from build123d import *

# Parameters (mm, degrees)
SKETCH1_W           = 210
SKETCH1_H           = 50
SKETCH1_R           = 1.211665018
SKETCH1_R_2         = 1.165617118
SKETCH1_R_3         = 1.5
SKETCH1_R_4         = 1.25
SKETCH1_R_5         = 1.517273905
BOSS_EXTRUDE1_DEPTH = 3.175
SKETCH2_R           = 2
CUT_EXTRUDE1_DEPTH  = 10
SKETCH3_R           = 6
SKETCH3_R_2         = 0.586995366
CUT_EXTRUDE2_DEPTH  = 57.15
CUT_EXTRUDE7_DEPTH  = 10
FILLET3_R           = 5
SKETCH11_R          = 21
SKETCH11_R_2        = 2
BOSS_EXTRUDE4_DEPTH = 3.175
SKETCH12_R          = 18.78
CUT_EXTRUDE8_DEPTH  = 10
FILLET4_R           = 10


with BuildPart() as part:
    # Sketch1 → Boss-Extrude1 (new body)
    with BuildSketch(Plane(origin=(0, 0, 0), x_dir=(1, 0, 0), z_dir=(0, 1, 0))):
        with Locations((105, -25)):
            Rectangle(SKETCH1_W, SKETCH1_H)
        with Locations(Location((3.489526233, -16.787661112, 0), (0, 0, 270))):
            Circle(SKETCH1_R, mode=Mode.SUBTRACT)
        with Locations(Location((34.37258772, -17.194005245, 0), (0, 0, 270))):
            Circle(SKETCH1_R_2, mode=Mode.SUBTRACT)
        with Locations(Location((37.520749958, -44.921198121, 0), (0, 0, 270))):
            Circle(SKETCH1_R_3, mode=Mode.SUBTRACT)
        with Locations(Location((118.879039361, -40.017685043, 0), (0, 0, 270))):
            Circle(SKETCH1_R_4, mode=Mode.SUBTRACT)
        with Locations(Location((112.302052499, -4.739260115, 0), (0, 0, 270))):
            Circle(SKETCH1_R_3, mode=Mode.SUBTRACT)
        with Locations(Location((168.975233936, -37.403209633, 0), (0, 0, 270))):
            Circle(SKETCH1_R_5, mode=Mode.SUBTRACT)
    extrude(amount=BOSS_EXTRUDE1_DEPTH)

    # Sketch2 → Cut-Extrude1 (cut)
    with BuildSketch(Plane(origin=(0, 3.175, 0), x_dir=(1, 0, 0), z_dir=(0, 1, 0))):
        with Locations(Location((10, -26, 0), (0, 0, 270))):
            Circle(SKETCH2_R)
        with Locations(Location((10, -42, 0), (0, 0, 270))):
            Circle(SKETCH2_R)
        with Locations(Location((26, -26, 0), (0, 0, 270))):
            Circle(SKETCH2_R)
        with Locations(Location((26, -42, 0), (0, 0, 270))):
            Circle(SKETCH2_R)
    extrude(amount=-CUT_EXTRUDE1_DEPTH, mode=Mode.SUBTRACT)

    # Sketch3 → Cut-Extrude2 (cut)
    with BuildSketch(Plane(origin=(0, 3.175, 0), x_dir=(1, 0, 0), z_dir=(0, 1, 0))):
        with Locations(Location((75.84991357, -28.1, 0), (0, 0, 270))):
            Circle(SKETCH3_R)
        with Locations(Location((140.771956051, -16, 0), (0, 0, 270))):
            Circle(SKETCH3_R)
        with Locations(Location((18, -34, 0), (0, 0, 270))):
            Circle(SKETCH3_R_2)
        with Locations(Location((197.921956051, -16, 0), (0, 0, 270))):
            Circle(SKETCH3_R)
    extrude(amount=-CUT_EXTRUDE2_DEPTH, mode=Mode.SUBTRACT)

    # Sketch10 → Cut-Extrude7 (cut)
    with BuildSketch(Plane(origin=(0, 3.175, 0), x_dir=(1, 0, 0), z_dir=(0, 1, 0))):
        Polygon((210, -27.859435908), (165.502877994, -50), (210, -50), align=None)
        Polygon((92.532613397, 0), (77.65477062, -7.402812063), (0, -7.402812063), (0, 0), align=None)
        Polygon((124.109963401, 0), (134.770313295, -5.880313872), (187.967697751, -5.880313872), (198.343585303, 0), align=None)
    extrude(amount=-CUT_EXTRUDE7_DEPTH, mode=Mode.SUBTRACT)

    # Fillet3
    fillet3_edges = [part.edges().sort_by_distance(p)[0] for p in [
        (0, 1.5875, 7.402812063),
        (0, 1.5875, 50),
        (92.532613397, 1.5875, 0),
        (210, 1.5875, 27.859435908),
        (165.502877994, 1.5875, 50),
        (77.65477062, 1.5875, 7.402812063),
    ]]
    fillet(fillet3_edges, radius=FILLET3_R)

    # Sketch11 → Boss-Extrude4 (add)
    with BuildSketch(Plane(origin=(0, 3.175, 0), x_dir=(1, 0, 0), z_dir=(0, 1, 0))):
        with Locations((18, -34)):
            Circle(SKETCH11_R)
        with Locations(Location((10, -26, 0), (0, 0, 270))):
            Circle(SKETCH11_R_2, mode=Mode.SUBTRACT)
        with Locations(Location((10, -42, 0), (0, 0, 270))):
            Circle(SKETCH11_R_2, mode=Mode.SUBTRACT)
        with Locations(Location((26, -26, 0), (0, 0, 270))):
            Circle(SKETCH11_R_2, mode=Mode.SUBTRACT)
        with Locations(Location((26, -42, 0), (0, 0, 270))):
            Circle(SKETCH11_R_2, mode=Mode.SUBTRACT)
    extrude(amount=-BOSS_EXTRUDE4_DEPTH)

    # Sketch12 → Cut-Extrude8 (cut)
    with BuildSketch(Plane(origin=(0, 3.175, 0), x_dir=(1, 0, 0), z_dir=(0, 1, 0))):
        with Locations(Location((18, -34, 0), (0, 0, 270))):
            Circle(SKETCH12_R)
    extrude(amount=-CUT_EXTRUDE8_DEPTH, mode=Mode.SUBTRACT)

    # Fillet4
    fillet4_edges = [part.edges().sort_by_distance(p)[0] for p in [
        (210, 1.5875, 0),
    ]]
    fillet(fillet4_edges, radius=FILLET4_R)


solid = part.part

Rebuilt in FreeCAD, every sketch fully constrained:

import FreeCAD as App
import Part
import Sketcher

V = App.Vector


def edges_at(feature, points):
    """Names of the edges that pass closest to the given points."""
    edges = feature.Shape.Edges
    near = lambda p: min(range(len(edges)), key=lambda i: edges[i].distToShape(Part.Vertex(*p))[0])
    return sorted({f"Edge{near(p) + 1}" for p in points})


def add_polygon(sketch, points):
    """Adds a closed chain of lines whose ends are joined by coincident constraints."""
    first, n = sketch.GeometryCount, len(points)
    for a, b in zip(points, points[1:] + points[:1]):
        sketch.addGeometry(Part.LineSegment(App.Vector(*a, 0), App.Vector(*b, 0)), False)
    for i in range(n):
        sketch.addConstraint(Sketcher.Constraint("Coincident", first + i, 2, first + (i + 1) % n, 1))

doc = App.newDocument("Part")
params = doc.addObject("Spreadsheet::Sheet", "Params")
for row, (alias, value) in enumerate([
    ("sketch1_diameter", "3 mm"),
    ("sketch1_diameter2", "2.5 mm"),
    ("sketch1_width", "210 mm"),
    ("sketch1_height", "50 mm"),
    ("pad1_length", "3.175 mm"),
    ("sketch2_diameter", "4 mm"),
    ("pocket1_length", "10 mm"),
    ("sketch3_diameter", "12 mm"),
    ("pocket2_length", "57.15 mm"),
    ("pocket3_length", "10 mm"),
    ("fillet_radius", "5 mm"),
    ("sketch5_diameter", "42 mm"),
    ("sketch5_diameter2", "4 mm"),
    ("pad2_length", "3.175 mm"),
    ("sketch6_diameter", "37.56 mm"),
    ("pocket4_length", "10 mm"),
    ("fillet2_radius", "10 mm"),
], start=1):
    params.set(f"A{row}", alias)
    params.set(f"B{row}", "=" + value)
    params.setAlias(f"B{row}", alias)

body = doc.addObject("PartDesign::Body", "Body")

# Sketch on XZ plane
sketch1 = doc.addObject("Sketcher::SketchObject", "Sketch")
body.addObject(sketch1)
sketch1.AttachmentSupport = (doc.XZ_Plane, [""])
sketch1.MapMode = "FlatFace"
add_polygon(sketch1, [(0, 0), (0, 50), (210, 50), (210, 0)])  # lines 0-3
sketch1.addGeometry(Part.Circle(V(37.5, 44.9, 0), V(0, 0, 1), 1.5), False)  # 4
sketch1.addGeometry(Part.Circle(V(118.9, 40, 0), V(0, 0, 1), 1.2), False)  # 5
sketch1.addGeometry(Part.Circle(V(169, 37.4, 0), V(0, 0, 1), 1.5), False)  # 6
sketch1.addGeometry(Part.Circle(V(3.5, 16.8, 0), V(0, 0, 1), 1.2), False)  # 7
sketch1.addGeometry(Part.Circle(V(34.4, 17.2, 0), V(0, 0, 1), 1.2), False)  # 8
sketch1.addGeometry(Part.Circle(V(112.3, 4.7, 0), V(0, 0, 1), 1.5), False)  # 9
sketch1.addConstraint(Sketcher.Constraint("Vertical", 0))
sketch1.addConstraint(Sketcher.Constraint("Horizontal", 1))
sketch1.addConstraint(Sketcher.Constraint("Vertical", 2))
sketch1.addConstraint(Sketcher.Constraint("Horizontal", 3))
sketch1.addConstraint(Sketcher.Constraint("Coincident", 3, 2, -1, 1))
sketch1.addConstraint(Sketcher.Constraint("Equal", 4, 9))
sketch1.addConstraint(Sketcher.Constraint("Diameter", 4, 3.0))
sketch1.addConstraint(Sketcher.Constraint("Diameter", 5, 2.5))
sketch1.addConstraint(Sketcher.Constraint("DistanceX", 1, 1, 1, 2, 210.0))
sketch1.addConstraint(Sketcher.Constraint("DistanceY", 0, 1, 0, 2, 50.0))
sketch1.addConstraint(Sketcher.Constraint("Diameter", 7, 2.42333))
sketch1.addConstraint(Sketcher.Constraint("Diameter", 6, 3.034548))
sketch1.addConstraint(Sketcher.Constraint("Diameter", 8, 2.331234))
sketch1.addConstraint(Sketcher.Constraint("DistanceY", -1, 1, 4, 3, 44.921198))
sketch1.addConstraint(Sketcher.Constraint("DistanceY", 9, 3, 7, 3, 12.048401))
sketch1.addConstraint(Sketcher.Constraint("DistanceX", -1, 1, 4, 3, 37.52075))
sketch1.addConstraint(Sketcher.Constraint("DistanceX", -1, 1, 5, 3, 118.879039))
sketch1.addConstraint(Sketcher.Constraint("DistanceY", -1, 1, 6, 3, 37.40321))
sketch1.addConstraint(Sketcher.Constraint("DistanceY", -1, 1, 7, 3, 16.787661))
sketch1.addConstraint(Sketcher.Constraint("DistanceX", 7, 3, 8, 3, 30.883061))
sketch1.addConstraint(Sketcher.Constraint("DistanceX", 8, 3, 5, 3, 84.506452))
sketch1.addConstraint(Sketcher.Constraint("DistanceY", 8, 3, 5, 3, 22.82368))
sketch1.addConstraint(Sketcher.Constraint("DistanceX", 9, 3, 6, 3, 56.673181))
sketch1.addConstraint(Sketcher.Constraint("DistanceY", -1, 1, 5, 3, 40.017685))
sketch1.addConstraint(Sketcher.Constraint("DistanceX", -1, 1, 6, 3, 168.975234))
sketch1.setExpression("Constraints[10]", "Params.sketch1_diameter")
sketch1.setExpression("Constraints[11]", "Params.sketch1_diameter2")
sketch1.setExpression("Constraints[12]", "Params.sketch1_width")
sketch1.setExpression("Constraints[13]", "Params.sketch1_height")
pad1 = doc.addObject("PartDesign::Pad", "Pad")
body.addObject(pad1)
pad1.Profile = sketch1
pad1.setExpression("Length", "Params.pad1_length")
pad1.Reversed = True

# Sketch on XZ plane
sketch2 = doc.addObject("Sketcher::SketchObject", "Sketch001")
body.addObject(sketch2)
sketch2.AttachmentSupport = (doc.XZ_Plane, [""])
sketch2.MapMode = "FlatFace"
sketch2.AttachmentOffset = App.Placement(V(0, 0, -3.175), App.Rotation())
sketch2.addGeometry(Part.Circle(V(10, 26, 0), V(0, 0, 1), 2), False)
sketch2.addGeometry(Part.Circle(V(10, 42, 0), V(0, 0, 1), 2), False)
sketch2.addGeometry(Part.Circle(V(26, 26, 0), V(0, 0, 1), 2), False)
sketch2.addGeometry(Part.Circle(V(26, 42, 0), V(0, 0, 1), 2), False)
sketch2.addConstraint(Sketcher.Constraint("Equal", 0, 1))
sketch2.addConstraint(Sketcher.Constraint("Equal", 1, 2))
sketch2.addConstraint(Sketcher.Constraint("Equal", 2, 3))
sketch2.addConstraint(Sketcher.Constraint("Horizontal", 0, 3, 2, 3))
sketch2.addConstraint(Sketcher.Constraint("Horizontal", 1, 3, 3, 3))
sketch2.addConstraint(Sketcher.Constraint("Vertical", 0, 3, 1, 3))
sketch2.addConstraint(Sketcher.Constraint("Vertical", 2, 3, 3, 3))
sketch2.addConstraint(Sketcher.Constraint("Diameter", 0, 4.0))
sketch2.addConstraint(Sketcher.Constraint("DistanceX", -1, 1, 0, 3, 10.0))
sketch2.addConstraint(Sketcher.Constraint("DistanceY", -1, 1, 0, 3, 26.0))
sketch2.addConstraint(Sketcher.Constraint("DistanceY", -1, 1, 1, 3, 42.0))
sketch2.addConstraint(Sketcher.Constraint("DistanceX", -1, 1, 2, 3, 26.0))
sketch2.setExpression("Constraints[7]", "Params.sketch2_diameter")
pocket1 = doc.addObject("PartDesign::Pocket", "Pocket")
body.addObject(pocket1)
pocket1.Profile = sketch2
pocket1.setExpression("Length", "Params.pocket1_length")
pocket1.Reversed = True

# Sketch on XZ plane
sketch3 = doc.addObject("Sketcher::SketchObject", "Sketch002")
body.addObject(sketch3)
sketch3.AttachmentSupport = (doc.XZ_Plane, [""])
sketch3.MapMode = "FlatFace"
sketch3.AttachmentOffset = App.Placement(V(0, 0, -3.175), App.Rotation())
sketch3.addGeometry(Part.Circle(V(75.8, 28.1, 0), V(0, 0, 1), 6), False)
sketch3.addGeometry(Part.Circle(V(140.8, 16, 0), V(0, 0, 1), 6), False)
sketch3.addGeometry(Part.Circle(V(18, 34, 0), V(0, 0, 1), 0.6), False)
sketch3.addGeometry(Part.Circle(V(197.9, 16, 0), V(0, 0, 1), 6), False)
sketch3.addConstraint(Sketcher.Constraint("Equal", 0, 1))
sketch3.addConstraint(Sketcher.Constraint("Equal", 1, 3))
sketch3.addConstraint(Sketcher.Constraint("Horizontal", 1, 3, 3, 3))
sketch3.addConstraint(Sketcher.Constraint("Diameter", 0, 12.0))
sketch3.addConstraint(Sketcher.Constraint("DistanceY", -1, 1, 1, 3, 16.0))
sketch3.addConstraint(Sketcher.Constraint("DistanceX", -1, 1, 2, 3, 18.0))
sketch3.addConstraint(Sketcher.Constraint("DistanceY", -1, 1, 2, 3, 34.0))
sketch3.addConstraint(Sketcher.Constraint("DistanceY", -1, 1, 0, 3, 28.1))
sketch3.addConstraint(Sketcher.Constraint("Diameter", 2, 1.173991))
sketch3.addConstraint(Sketcher.Constraint("DistanceX", 1, 3, 3, 3, 57.15))
sketch3.addConstraint(Sketcher.Constraint("DistanceX", -1, 1, 0, 3, 75.849914))
sketch3.addConstraint(Sketcher.Constraint("DistanceX", -1, 1, 1, 3, 140.771956))
sketch3.setExpression("Constraints[3]", "Params.sketch3_diameter")
pocket2 = doc.addObject("PartDesign::Pocket", "Pocket001")
body.addObject(pocket2)
pocket2.Profile = sketch3
pocket2.setExpression("Length", "Params.pocket2_length")
pocket2.Reversed = True

# Sketch on XZ plane
sketch4 = doc.addObject("Sketcher::SketchObject", "Sketch003")
body.addObject(sketch4)
sketch4.AttachmentSupport = (doc.XZ_Plane, [""])
sketch4.MapMode = "FlatFace"
sketch4.AttachmentOffset = App.Placement(V(0, 0, -3.175), App.Rotation())
add_polygon(sketch4, [(210, 28), (166, 50), (210, 50)])  # lines 0-2
add_polygon(sketch4, [(78, 7), (93, 0), (0, 0), (0, 7)])  # lines 3-6
add_polygon(sketch4, [(124, 0), (135, 6), (188, 6), (198, 0)])  # lines 7-10
sketch4.addConstraint(Sketcher.Constraint("Horizontal", 1))
sketch4.addConstraint(Sketcher.Constraint("Vertical", 2))
sketch4.addConstraint(Sketcher.Constraint("Horizontal", 4))
sketch4.addConstraint(Sketcher.Constraint("Vertical", 5))
sketch4.addConstraint(Sketcher.Constraint("Horizontal", 6))
sketch4.addConstraint(Sketcher.Constraint("Horizontal", 8))
sketch4.addConstraint(Sketcher.Constraint("Horizontal", 10))
sketch4.addConstraint(Sketcher.Constraint("Coincident", 4, 2, -1, 1))
sketch4.addConstraint(Sketcher.Constraint("PointOnObject", 9, 2, -1))
sketch4.addConstraint(Sketcher.Constraint("Parallel", 0, 3))
sketch4.addConstraint(Sketcher.Constraint("DistanceY", -1, 1, 0, 2, 50.0))
sketch4.addConstraint(Sketcher.Constraint("DistanceX", -1, 1, 1, 2, 210.0))
sketch4.addConstraint(Sketcher.Constraint("DistanceX", 6, 1, 6, 2, 77.654771))
sketch4.addConstraint(Sketcher.Constraint("DistanceX", 10, 2, 10, 1, 74.233622))
sketch4.addConstraint(Sketcher.Constraint("DistanceX", 3, 2, 7, 2, 42.2377))
sketch4.addConstraint(Sketcher.Constraint("DistanceY", 7, 2, 6, 2, 1.522498))
sketch4.addConstraint(Sketcher.Constraint("Distance", 0, 49.701091))
sketch4.addConstraint(Sketcher.Constraint("Distance", 7, 12.174611))
sketch4.addConstraint(Sketcher.Constraint("Distance", 9, 11.926321))
sketch4.addConstraint(Sketcher.Constraint("DistanceX", 1, 1, 1, 2, 44.497122))
sketch4.addConstraint(Sketcher.Constraint("DistanceX", 4, 2, 4, 1, 92.532613))
pocket3 = doc.addObject("PartDesign::Pocket", "Pocket002")
body.addObject(pocket3)
pocket3.Profile = sketch4
pocket3.setExpression("Length", "Params.pocket3_length")
pocket3.Reversed = True
doc.recompute()

fillet = doc.addObject("PartDesign::Fillet", "Fillet")
body.addObject(fillet)
fillet.Base = (pocket3, edges_at(pocket3, [
    (0, 1.587, 7.403),
    (0, 1.587, 50),
    (92.533, 1.587, 0),
    (210, 1.587, 27.859),
    (165.503, 1.587, 50),
    (77.655, 1.587, 7.403),
]))
fillet.setExpression("Radius", "Params.fillet_radius")

# Sketch on XZ plane
sketch5 = doc.addObject("Sketcher::SketchObject", "Sketch004")
body.addObject(sketch5)
sketch5.AttachmentSupport = (doc.XZ_Plane, [""])
sketch5.MapMode = "FlatFace"
sketch5.AttachmentOffset = App.Placement(V(0, 0, -3.175), App.Rotation())
sketch5.addGeometry(Part.Circle(V(18, 34, 0), V(0, 0, 1), 21), False)
sketch5.addGeometry(Part.Circle(V(10, 42, 0), V(0, 0, 1), 2), False)
sketch5.addGeometry(Part.Circle(V(26, 42, 0), V(0, 0, 1), 2), False)
sketch5.addGeometry(Part.Circle(V(10, 26, 0), V(0, 0, 1), 2), False)
sketch5.addGeometry(Part.Circle(V(26, 26, 0), V(0, 0, 1), 2), False)
sketch5.addConstraint(Sketcher.Constraint("Equal", 1, 2))
sketch5.addConstraint(Sketcher.Constraint("Equal", 2, 3))
sketch5.addConstraint(Sketcher.Constraint("Equal", 3, 4))
sketch5.addConstraint(Sketcher.Constraint("Horizontal", 1, 3, 2, 3))
sketch5.addConstraint(Sketcher.Constraint("Horizontal", 3, 3, 4, 3))
sketch5.addConstraint(Sketcher.Constraint("Vertical", 1, 3, 3, 3))
sketch5.addConstraint(Sketcher.Constraint("Vertical", 2, 3, 4, 3))
sketch5.addConstraint(Sketcher.Constraint("Diameter", 0, 42.0))
sketch5.addConstraint(Sketcher.Constraint("Diameter", 1, 4.0))
sketch5.addConstraint(Sketcher.Constraint("DistanceX", -1, 1, 0, 3, 18.0))
sketch5.addConstraint(Sketcher.Constraint("DistanceY", -1, 1, 0, 3, 34.0))
sketch5.addConstraint(Sketcher.Constraint("DistanceX", -1, 1, 1, 3, 10.0))
sketch5.addConstraint(Sketcher.Constraint("DistanceY", -1, 1, 1, 3, 42.0))
sketch5.addConstraint(Sketcher.Constraint("DistanceX", -1, 1, 2, 3, 26.0))
sketch5.addConstraint(Sketcher.Constraint("DistanceY", -1, 1, 3, 3, 26.0))
sketch5.setExpression("Constraints[7]", "Params.sketch5_diameter")
sketch5.setExpression("Constraints[8]", "Params.sketch5_diameter2")
pad2 = doc.addObject("PartDesign::Pad", "Pad001")
body.addObject(pad2)
pad2.Profile = sketch5
pad2.setExpression("Length", "Params.pad2_length")

# Sketch on XZ plane
sketch6 = doc.addObject("Sketcher::SketchObject", "Sketch005")
body.addObject(sketch6)
sketch6.AttachmentSupport = (doc.XZ_Plane, [""])
sketch6.MapMode = "FlatFace"
sketch6.AttachmentOffset = App.Placement(V(0, 0, -3.175), App.Rotation())
sketch6.addGeometry(Part.Circle(V(18, 34, 0), V(0, 0, 1), 19), False)
sketch6.addConstraint(Sketcher.Constraint("Diameter", 0, 37.56))
sketch6.addConstraint(Sketcher.Constraint("DistanceX", -1, 1, 0, 3, 18.0))
sketch6.addConstraint(Sketcher.Constraint("DistanceY", -1, 1, 0, 3, 34.0))
sketch6.setExpression("Constraints[0]", "Params.sketch6_diameter")
pocket4 = doc.addObject("PartDesign::Pocket", "Pocket003")
body.addObject(pocket4)
pocket4.Profile = sketch6
pocket4.setExpression("Length", "Params.pocket4_length")
pocket4.Reversed = True
doc.recompute()

fillet2 = doc.addObject("PartDesign::Fillet", "Fillet001")
body.addObject(fillet2)
fillet2.Base = (pocket4, edges_at(pocket4, [(210, 1.587, 0)]))
fillet2.setExpression("Radius", "Params.fillet2_radius")

doc.recompute()
